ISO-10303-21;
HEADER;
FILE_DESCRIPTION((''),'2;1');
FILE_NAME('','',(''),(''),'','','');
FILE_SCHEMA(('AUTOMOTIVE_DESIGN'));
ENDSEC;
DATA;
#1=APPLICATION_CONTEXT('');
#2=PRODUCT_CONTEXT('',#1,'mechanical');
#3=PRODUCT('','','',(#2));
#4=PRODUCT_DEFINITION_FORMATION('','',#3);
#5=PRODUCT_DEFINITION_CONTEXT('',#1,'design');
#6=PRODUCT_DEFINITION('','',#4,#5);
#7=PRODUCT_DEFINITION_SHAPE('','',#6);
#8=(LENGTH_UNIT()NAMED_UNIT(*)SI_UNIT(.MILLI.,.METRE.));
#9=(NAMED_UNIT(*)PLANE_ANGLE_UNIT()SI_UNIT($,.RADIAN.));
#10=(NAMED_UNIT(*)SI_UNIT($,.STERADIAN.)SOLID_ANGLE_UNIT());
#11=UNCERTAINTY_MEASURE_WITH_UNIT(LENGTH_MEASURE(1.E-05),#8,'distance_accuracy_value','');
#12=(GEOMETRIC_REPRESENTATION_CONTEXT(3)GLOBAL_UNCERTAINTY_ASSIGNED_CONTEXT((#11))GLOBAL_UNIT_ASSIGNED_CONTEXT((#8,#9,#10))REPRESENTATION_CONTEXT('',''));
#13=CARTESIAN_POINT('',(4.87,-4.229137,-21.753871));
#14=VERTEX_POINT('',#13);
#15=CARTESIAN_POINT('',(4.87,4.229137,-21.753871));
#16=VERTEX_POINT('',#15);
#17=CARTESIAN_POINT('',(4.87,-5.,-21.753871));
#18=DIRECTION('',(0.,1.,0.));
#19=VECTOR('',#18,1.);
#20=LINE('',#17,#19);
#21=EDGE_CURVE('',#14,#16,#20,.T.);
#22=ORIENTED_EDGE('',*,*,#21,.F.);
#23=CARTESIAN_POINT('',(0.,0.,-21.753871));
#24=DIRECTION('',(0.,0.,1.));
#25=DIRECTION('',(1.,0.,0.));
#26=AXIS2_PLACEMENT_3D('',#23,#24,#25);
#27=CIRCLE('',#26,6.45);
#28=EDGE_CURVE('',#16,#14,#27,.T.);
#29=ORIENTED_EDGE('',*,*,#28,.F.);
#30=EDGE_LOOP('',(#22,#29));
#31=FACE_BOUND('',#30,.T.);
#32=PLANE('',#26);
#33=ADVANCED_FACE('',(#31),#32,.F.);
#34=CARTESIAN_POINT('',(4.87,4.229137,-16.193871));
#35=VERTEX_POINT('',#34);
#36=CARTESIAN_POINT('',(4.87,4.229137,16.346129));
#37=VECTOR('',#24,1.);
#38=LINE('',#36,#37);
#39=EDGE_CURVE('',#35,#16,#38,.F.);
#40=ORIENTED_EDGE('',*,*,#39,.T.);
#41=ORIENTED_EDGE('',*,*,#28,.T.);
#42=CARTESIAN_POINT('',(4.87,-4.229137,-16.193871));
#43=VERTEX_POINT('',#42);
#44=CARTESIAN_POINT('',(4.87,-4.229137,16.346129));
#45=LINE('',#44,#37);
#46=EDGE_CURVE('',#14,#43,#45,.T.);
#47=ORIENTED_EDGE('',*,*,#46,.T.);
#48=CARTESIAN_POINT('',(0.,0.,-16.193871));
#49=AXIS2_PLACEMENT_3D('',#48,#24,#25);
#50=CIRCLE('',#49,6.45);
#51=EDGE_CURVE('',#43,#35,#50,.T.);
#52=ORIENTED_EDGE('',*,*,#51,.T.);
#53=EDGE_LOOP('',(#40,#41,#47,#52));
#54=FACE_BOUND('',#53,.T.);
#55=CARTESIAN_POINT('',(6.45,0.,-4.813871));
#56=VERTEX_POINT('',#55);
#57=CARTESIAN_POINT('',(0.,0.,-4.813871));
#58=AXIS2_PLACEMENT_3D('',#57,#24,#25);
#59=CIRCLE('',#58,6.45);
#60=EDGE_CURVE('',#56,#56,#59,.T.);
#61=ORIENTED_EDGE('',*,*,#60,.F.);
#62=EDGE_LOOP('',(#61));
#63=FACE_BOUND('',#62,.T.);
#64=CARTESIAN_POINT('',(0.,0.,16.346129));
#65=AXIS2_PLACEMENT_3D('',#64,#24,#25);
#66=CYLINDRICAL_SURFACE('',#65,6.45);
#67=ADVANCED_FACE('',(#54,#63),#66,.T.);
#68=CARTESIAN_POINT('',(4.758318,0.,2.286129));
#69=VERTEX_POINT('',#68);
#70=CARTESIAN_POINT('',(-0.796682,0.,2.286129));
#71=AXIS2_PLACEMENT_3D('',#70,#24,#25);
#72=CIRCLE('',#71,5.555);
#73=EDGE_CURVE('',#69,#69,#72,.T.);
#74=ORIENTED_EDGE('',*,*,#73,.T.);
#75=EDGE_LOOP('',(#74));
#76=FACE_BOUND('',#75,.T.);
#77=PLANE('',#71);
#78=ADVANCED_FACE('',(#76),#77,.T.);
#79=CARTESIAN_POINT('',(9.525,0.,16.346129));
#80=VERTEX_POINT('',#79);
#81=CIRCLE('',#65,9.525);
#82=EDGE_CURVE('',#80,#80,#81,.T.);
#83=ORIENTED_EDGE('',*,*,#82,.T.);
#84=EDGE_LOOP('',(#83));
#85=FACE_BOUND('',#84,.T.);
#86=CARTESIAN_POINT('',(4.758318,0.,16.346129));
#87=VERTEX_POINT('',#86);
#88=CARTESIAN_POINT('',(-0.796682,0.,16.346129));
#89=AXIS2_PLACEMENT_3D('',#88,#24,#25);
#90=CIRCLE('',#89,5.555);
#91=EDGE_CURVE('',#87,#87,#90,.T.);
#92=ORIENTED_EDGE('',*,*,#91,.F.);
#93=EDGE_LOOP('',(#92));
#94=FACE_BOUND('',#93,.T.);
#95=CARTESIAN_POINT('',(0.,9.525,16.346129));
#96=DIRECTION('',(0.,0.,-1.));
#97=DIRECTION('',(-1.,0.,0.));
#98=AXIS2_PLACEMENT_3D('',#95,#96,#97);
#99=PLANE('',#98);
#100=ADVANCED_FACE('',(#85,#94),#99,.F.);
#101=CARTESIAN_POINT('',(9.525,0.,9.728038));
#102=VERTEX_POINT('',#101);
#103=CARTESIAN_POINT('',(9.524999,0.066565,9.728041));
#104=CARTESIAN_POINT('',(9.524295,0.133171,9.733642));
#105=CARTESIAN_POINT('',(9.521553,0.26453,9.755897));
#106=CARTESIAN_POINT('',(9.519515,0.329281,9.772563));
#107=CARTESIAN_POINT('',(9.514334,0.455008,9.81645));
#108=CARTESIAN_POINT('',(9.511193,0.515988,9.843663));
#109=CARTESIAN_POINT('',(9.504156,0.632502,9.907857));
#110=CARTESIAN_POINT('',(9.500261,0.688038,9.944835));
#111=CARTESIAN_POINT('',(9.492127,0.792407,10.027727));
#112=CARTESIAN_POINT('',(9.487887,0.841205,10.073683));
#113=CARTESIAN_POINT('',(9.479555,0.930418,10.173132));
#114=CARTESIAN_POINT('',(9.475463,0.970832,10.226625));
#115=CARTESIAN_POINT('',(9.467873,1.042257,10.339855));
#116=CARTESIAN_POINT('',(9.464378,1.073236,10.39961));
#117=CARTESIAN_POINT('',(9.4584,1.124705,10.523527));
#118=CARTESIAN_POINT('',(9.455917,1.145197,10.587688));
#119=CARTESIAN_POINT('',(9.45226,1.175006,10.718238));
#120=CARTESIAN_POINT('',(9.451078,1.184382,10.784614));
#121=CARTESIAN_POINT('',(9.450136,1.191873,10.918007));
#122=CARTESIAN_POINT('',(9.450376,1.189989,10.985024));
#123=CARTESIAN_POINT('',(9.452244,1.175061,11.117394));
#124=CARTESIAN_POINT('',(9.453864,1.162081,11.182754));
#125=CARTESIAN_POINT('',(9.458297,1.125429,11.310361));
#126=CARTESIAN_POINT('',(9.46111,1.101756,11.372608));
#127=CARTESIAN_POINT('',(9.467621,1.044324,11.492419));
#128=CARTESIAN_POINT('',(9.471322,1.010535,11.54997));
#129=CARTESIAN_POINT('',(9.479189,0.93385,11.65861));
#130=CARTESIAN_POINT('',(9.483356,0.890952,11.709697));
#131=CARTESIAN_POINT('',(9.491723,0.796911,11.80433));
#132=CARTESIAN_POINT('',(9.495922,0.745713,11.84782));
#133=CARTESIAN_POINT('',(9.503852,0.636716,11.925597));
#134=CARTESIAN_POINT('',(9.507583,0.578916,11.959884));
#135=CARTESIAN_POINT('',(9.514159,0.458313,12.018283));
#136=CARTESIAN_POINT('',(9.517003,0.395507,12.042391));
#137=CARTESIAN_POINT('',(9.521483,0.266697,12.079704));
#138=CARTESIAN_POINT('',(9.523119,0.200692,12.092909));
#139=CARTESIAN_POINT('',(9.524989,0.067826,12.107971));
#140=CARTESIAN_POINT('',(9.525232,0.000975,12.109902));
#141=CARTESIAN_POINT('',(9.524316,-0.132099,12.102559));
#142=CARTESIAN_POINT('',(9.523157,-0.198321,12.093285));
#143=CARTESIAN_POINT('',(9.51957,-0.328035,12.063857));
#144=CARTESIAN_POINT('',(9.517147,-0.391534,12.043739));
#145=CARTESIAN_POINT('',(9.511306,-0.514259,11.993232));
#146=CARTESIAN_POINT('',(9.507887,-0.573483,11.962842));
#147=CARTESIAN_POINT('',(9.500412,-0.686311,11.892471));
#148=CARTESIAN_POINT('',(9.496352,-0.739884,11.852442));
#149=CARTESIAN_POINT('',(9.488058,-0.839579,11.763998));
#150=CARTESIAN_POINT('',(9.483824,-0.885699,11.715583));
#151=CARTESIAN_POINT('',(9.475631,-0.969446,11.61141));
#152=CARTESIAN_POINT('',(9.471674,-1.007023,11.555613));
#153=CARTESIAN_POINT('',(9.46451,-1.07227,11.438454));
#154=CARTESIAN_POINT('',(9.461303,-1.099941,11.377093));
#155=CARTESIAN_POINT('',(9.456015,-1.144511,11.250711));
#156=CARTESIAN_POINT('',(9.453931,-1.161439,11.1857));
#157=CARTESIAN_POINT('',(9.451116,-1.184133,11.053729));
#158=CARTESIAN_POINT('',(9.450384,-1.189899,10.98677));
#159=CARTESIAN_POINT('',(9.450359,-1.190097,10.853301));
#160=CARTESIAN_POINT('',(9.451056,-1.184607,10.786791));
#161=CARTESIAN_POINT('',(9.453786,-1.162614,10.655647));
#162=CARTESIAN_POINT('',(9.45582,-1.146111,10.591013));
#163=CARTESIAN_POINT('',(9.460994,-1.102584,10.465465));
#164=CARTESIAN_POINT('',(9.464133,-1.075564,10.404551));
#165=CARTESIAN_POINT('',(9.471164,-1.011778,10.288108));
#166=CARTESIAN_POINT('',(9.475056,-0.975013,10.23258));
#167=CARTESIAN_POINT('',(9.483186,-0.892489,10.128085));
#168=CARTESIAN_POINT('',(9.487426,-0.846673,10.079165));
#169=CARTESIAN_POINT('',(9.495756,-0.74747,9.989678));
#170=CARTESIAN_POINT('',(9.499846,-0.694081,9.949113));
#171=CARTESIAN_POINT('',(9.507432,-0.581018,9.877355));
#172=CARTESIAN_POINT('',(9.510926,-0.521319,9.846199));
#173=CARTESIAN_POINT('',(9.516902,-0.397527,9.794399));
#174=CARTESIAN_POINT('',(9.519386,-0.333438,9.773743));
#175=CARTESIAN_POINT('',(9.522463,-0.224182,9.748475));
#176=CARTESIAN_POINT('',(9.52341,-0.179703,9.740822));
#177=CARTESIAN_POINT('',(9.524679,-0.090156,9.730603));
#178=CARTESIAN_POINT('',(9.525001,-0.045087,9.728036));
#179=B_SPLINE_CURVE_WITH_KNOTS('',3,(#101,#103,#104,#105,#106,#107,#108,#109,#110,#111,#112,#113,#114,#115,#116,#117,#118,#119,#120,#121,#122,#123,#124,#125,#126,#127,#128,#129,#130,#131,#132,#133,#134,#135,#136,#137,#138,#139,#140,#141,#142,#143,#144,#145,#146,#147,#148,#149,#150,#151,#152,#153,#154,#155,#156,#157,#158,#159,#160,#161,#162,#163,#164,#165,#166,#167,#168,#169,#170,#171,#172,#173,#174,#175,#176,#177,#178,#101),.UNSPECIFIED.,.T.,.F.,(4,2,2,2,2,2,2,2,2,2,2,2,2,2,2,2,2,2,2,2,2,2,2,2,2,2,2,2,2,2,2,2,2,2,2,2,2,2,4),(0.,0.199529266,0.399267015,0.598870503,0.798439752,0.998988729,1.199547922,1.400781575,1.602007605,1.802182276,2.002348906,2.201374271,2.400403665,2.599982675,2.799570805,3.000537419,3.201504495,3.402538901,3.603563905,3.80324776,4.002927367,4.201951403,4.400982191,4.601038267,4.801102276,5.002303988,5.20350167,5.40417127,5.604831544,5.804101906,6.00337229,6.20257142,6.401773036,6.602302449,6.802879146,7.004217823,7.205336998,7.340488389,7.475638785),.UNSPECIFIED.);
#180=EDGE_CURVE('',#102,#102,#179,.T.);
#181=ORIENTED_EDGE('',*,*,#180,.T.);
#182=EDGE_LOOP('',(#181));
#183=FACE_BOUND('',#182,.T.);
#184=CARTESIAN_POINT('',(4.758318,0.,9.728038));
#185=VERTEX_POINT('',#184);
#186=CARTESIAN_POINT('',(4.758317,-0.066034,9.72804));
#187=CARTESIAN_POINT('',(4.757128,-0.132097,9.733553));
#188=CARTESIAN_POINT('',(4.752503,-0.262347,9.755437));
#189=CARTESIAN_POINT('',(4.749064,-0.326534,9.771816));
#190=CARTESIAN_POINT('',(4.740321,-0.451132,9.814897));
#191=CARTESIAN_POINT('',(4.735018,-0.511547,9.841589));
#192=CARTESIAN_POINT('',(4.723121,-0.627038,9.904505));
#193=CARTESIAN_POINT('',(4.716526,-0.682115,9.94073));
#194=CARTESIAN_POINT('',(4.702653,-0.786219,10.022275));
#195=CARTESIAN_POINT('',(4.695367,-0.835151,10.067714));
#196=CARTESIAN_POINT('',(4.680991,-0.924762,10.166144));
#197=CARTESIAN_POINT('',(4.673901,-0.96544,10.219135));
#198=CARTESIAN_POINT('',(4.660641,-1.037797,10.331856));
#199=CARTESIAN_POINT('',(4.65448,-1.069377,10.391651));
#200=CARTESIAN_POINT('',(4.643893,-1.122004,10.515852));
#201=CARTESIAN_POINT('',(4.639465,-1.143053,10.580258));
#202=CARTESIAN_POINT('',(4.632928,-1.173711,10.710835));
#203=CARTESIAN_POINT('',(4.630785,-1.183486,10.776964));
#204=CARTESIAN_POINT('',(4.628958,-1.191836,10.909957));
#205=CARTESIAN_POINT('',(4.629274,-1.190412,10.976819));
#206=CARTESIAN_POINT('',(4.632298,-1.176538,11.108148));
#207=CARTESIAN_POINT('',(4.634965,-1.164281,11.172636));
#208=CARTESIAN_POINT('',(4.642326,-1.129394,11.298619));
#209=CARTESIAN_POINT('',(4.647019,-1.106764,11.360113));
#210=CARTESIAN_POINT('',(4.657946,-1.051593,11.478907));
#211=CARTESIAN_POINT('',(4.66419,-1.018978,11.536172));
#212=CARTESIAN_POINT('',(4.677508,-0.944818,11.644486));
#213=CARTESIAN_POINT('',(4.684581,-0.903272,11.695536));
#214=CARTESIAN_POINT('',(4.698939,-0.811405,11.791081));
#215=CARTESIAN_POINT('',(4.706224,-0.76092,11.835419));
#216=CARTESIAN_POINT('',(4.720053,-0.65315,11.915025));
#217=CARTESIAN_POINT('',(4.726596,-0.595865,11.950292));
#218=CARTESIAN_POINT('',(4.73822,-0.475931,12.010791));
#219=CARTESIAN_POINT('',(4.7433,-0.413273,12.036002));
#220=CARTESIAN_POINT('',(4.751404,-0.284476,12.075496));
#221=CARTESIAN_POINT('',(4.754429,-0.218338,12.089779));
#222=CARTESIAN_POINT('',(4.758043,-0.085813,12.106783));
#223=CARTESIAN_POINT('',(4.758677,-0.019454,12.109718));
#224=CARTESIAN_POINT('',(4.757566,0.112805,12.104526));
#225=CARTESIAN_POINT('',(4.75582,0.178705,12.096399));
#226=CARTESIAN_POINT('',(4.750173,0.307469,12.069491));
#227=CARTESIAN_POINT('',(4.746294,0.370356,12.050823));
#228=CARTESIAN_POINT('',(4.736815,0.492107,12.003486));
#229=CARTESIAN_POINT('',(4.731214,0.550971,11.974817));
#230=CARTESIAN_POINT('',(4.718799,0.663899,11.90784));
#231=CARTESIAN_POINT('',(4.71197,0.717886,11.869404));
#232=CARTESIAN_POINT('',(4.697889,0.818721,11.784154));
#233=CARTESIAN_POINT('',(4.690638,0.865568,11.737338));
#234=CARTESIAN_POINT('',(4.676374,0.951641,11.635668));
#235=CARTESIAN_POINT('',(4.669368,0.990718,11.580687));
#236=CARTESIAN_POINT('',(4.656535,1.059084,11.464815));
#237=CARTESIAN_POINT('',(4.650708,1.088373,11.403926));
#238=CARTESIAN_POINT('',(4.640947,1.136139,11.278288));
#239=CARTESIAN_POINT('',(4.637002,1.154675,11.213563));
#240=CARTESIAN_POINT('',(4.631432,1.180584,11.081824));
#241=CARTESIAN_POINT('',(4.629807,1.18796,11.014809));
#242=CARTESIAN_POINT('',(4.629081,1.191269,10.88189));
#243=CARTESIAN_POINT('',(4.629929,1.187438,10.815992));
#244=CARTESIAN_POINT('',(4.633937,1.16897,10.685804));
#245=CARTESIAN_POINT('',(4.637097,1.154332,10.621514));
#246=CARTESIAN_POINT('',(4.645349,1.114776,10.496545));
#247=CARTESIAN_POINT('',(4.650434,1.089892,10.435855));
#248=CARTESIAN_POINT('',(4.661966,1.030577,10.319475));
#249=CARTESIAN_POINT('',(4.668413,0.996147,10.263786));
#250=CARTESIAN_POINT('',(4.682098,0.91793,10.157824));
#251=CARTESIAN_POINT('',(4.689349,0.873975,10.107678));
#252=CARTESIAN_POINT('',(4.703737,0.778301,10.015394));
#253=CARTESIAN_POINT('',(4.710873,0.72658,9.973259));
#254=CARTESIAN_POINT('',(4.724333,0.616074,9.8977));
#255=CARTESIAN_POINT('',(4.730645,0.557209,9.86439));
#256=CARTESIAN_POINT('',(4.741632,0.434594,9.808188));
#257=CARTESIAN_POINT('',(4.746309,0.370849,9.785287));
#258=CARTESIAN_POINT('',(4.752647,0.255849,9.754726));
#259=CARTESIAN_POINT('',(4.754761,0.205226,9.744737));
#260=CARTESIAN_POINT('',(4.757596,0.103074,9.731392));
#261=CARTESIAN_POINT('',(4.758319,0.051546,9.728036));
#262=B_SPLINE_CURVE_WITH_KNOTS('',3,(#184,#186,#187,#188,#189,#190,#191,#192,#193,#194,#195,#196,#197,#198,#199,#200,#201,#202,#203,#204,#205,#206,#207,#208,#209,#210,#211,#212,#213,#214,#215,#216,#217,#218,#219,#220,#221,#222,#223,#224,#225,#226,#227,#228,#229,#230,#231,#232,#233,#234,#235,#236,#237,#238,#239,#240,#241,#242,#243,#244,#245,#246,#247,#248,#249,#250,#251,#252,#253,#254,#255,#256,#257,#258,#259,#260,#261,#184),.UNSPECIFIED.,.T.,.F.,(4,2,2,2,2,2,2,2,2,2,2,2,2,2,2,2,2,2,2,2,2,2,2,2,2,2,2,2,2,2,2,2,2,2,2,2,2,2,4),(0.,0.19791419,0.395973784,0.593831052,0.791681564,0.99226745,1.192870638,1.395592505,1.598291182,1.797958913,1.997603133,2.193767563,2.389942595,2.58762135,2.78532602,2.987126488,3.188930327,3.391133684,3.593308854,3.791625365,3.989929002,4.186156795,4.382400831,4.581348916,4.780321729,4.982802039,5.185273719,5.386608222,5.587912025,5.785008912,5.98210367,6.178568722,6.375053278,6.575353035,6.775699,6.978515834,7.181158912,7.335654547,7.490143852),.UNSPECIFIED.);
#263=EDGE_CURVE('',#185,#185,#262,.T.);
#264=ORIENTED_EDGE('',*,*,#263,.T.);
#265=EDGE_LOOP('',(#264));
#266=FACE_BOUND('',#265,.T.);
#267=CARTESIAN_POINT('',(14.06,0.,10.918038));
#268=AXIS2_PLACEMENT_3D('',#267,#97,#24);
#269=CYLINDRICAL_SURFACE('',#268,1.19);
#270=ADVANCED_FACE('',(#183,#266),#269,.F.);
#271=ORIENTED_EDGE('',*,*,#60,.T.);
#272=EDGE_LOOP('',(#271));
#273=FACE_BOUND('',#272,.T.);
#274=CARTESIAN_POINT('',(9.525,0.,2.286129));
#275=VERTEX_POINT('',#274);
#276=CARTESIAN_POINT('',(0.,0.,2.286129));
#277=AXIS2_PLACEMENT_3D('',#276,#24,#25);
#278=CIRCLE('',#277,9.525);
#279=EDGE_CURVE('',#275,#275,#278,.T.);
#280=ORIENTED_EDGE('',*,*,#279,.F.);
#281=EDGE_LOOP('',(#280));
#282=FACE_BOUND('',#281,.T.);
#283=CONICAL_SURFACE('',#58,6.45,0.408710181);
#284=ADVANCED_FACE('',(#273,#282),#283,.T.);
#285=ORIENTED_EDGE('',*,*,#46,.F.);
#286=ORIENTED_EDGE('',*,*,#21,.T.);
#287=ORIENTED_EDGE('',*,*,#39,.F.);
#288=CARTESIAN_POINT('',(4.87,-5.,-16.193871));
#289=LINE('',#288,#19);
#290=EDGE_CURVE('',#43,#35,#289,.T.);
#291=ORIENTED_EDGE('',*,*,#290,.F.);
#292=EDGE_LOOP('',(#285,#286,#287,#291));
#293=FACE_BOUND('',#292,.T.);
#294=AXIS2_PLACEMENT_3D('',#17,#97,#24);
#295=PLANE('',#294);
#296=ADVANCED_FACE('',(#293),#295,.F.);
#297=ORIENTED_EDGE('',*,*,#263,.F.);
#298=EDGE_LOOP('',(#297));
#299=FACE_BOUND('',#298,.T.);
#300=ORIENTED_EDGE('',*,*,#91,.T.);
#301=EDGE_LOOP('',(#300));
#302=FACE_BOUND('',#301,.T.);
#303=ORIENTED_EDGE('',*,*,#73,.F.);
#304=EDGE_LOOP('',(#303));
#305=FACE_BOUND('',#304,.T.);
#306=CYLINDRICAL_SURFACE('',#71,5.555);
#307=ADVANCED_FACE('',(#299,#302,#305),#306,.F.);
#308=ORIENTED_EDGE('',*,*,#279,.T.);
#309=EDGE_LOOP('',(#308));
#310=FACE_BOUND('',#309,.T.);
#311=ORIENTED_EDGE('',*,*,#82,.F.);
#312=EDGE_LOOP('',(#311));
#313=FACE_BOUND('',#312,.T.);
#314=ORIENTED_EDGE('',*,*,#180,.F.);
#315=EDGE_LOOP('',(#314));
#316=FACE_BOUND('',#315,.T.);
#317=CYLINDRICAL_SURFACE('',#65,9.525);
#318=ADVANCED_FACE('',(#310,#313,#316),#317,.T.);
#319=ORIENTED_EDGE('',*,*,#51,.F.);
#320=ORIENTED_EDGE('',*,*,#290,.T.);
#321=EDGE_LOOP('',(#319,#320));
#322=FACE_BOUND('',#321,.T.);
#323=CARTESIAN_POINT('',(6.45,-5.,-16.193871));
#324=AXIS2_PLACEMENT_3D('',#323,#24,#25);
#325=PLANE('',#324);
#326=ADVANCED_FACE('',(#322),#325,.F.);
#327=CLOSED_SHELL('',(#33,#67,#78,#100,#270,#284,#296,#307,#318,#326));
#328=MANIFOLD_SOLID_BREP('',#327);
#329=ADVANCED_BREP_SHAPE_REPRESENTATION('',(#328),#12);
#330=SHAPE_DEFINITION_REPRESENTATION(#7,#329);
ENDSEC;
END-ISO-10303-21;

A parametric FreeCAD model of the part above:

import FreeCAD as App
import Part
import Sketcher
from FreeCAD import Vector
Q = App.Units.Quantity


def add_polygon(sketch, points):
    """Adds a closed chain of lines whose ends are joined by coincident constraints."""
    first, n = sketch.GeometryCount, len(points)
    for a, b in zip(points, points[1:] + points[:1]):
        sketch.addGeometry(Part.LineSegment(App.Vector(*a, 0), App.Vector(*b, 0)), False)
    for i in range(n):
        sketch.addConstraint(Sketcher.Constraint("Coincident", first + i, 2, first + (i + 1) % n, 1))

doc = App.newDocument("Part")
body = doc.addObject("PartDesign::Body", "Body")

sketch1 = body.newObject("Sketcher::SketchObject", "Sketch")
sketch1.AttachmentSupport = (doc.getObject("YZ_Plane"), [""])
sketch1.MapMode = "FlatFace"
add_polygon(sketch1, [(10, 2), (10, 16), (0, 16), (0, -22), (6, -22), (6, -5)])
sketch1.addConstraint([
    Sketcher.Constraint("Vertical", 0),
    Sketcher.Constraint("Horizontal", 1),
    Sketcher.Constraint("Vertical", 2),
    Sketcher.Constraint("Horizontal", 3),
    Sketcher.Constraint("Vertical", 4),
    Sketcher.Constraint("PointOnObject", 1, 2, -2),
    Sketcher.Constraint("DistanceY", 2, 2, 2, 1, Q("1.5 in")),
    Sketcher.Constraint("DistanceX", 1, 2, 1, 1, Q("0.375 in")),
    Sketcher.Constraint("DistanceX", 3, 1, 3, 2, Q("6.45 mm")),
    Sketcher.Constraint("DistanceY", 0, 1, 0, 2, Q("14.06 mm")),
    Sketcher.Constraint("DistanceY", 4, 1, 4, 2, Q("16.94 mm")),
    Sketcher.Constraint("DistanceY", -1, 1, 0, 2, Q("16.346129 mm")),
])
revolution = body.newObject("PartDesign::Revolution", "Revolution")
revolution.Profile = sketch1
revolution.ReferenceAxis = (sketch1, ["V_Axis"])
revolution.Angle = 360

sketch2 = body.newObject("Sketcher::SketchObject", "Sketch001")
sketch2.AttachmentSupport = (doc.getObject("XZ_Plane"), [""])
sketch2.MapMode = "FlatFace"
add_polygon(sketch2, [(4.9, -21.8), (4.9, -16.2), (6.5, -16.2), (6.5, -21.8)])
sketch2.addConstraint([
    Sketcher.Constraint("Vertical", 0),
    Sketcher.Constraint("Horizontal", 1),
    Sketcher.Constraint("Vertical", 2),
    Sketcher.Constraint("Horizontal", 3),
    Sketcher.Constraint("DistanceX", 1, 1, 1, 2, Q("1.58 mm")),
    Sketcher.Constraint("DistanceY", 0, 1, 0, 2, Q("5.56 mm")),
    Sketcher.Constraint("DistanceX", -1, 1, 0, 2, Q("4.87 mm")),
    Sketcher.Constraint("DistanceY", 0, 2, -1, 1, Q("16.193871 mm")),
])
pocket1 = body.newObject("PartDesign::Pocket", "Pocket")
pocket1.Profile = sketch2
pocket1.Length = 10
pocket1.Midplane = True

sketch3 = body.newObject("Sketcher::SketchObject", "Sketch002")
sketch3.AttachmentSupport = (doc.getObject("XY_Plane"), [""])
sketch3.MapMode = "FlatFace"
sketch3.AttachmentOffset = App.Placement(Vector(0, 0, 16.346129), App.Rotation())
sketch3.addGeometry(Part.Circle(Vector(-1, 0, 0), Vector(0, 0, 1), 6), False)
sketch3.addConstraint([
    Sketcher.Constraint("PointOnObject", 0, 3, -1),
    Sketcher.Constraint("Diameter", 0, Q("11.11 mm")),
    Sketcher.Constraint("DistanceX", 0, 3, -1, 1, Q("0.796682 mm")),
])
pocket2 = body.newObject("PartDesign::Pocket", "Pocket001")
pocket2.Profile = sketch3
pocket2.Length = 14.06

sketch4 = body.newObject("Sketcher::SketchObject", "Sketch003")
sketch4.AttachmentSupport = (doc.getObject("YZ_Plane"), [""])
sketch4.MapMode = "FlatFace"
sketch4.addGeometry(Part.Circle(Vector(0, 10.9, 0), Vector(0, 0, 1), 1.2), False)
sketch4.addConstraint([
    Sketcher.Constraint("PointOnObject", 0, 3, -2),
    Sketcher.Constraint("Diameter", 0, Q("2.38 mm")),
    Sketcher.Constraint("DistanceY", -1, 1, 0, 3, Q("10.918038 mm")),
])
pocket3 = body.newObject("PartDesign::Pocket", "Pocket002")
pocket3.Profile = sketch4
pocket3.Length = 14.06
pocket3.Reversed = True

doc.recompute()
